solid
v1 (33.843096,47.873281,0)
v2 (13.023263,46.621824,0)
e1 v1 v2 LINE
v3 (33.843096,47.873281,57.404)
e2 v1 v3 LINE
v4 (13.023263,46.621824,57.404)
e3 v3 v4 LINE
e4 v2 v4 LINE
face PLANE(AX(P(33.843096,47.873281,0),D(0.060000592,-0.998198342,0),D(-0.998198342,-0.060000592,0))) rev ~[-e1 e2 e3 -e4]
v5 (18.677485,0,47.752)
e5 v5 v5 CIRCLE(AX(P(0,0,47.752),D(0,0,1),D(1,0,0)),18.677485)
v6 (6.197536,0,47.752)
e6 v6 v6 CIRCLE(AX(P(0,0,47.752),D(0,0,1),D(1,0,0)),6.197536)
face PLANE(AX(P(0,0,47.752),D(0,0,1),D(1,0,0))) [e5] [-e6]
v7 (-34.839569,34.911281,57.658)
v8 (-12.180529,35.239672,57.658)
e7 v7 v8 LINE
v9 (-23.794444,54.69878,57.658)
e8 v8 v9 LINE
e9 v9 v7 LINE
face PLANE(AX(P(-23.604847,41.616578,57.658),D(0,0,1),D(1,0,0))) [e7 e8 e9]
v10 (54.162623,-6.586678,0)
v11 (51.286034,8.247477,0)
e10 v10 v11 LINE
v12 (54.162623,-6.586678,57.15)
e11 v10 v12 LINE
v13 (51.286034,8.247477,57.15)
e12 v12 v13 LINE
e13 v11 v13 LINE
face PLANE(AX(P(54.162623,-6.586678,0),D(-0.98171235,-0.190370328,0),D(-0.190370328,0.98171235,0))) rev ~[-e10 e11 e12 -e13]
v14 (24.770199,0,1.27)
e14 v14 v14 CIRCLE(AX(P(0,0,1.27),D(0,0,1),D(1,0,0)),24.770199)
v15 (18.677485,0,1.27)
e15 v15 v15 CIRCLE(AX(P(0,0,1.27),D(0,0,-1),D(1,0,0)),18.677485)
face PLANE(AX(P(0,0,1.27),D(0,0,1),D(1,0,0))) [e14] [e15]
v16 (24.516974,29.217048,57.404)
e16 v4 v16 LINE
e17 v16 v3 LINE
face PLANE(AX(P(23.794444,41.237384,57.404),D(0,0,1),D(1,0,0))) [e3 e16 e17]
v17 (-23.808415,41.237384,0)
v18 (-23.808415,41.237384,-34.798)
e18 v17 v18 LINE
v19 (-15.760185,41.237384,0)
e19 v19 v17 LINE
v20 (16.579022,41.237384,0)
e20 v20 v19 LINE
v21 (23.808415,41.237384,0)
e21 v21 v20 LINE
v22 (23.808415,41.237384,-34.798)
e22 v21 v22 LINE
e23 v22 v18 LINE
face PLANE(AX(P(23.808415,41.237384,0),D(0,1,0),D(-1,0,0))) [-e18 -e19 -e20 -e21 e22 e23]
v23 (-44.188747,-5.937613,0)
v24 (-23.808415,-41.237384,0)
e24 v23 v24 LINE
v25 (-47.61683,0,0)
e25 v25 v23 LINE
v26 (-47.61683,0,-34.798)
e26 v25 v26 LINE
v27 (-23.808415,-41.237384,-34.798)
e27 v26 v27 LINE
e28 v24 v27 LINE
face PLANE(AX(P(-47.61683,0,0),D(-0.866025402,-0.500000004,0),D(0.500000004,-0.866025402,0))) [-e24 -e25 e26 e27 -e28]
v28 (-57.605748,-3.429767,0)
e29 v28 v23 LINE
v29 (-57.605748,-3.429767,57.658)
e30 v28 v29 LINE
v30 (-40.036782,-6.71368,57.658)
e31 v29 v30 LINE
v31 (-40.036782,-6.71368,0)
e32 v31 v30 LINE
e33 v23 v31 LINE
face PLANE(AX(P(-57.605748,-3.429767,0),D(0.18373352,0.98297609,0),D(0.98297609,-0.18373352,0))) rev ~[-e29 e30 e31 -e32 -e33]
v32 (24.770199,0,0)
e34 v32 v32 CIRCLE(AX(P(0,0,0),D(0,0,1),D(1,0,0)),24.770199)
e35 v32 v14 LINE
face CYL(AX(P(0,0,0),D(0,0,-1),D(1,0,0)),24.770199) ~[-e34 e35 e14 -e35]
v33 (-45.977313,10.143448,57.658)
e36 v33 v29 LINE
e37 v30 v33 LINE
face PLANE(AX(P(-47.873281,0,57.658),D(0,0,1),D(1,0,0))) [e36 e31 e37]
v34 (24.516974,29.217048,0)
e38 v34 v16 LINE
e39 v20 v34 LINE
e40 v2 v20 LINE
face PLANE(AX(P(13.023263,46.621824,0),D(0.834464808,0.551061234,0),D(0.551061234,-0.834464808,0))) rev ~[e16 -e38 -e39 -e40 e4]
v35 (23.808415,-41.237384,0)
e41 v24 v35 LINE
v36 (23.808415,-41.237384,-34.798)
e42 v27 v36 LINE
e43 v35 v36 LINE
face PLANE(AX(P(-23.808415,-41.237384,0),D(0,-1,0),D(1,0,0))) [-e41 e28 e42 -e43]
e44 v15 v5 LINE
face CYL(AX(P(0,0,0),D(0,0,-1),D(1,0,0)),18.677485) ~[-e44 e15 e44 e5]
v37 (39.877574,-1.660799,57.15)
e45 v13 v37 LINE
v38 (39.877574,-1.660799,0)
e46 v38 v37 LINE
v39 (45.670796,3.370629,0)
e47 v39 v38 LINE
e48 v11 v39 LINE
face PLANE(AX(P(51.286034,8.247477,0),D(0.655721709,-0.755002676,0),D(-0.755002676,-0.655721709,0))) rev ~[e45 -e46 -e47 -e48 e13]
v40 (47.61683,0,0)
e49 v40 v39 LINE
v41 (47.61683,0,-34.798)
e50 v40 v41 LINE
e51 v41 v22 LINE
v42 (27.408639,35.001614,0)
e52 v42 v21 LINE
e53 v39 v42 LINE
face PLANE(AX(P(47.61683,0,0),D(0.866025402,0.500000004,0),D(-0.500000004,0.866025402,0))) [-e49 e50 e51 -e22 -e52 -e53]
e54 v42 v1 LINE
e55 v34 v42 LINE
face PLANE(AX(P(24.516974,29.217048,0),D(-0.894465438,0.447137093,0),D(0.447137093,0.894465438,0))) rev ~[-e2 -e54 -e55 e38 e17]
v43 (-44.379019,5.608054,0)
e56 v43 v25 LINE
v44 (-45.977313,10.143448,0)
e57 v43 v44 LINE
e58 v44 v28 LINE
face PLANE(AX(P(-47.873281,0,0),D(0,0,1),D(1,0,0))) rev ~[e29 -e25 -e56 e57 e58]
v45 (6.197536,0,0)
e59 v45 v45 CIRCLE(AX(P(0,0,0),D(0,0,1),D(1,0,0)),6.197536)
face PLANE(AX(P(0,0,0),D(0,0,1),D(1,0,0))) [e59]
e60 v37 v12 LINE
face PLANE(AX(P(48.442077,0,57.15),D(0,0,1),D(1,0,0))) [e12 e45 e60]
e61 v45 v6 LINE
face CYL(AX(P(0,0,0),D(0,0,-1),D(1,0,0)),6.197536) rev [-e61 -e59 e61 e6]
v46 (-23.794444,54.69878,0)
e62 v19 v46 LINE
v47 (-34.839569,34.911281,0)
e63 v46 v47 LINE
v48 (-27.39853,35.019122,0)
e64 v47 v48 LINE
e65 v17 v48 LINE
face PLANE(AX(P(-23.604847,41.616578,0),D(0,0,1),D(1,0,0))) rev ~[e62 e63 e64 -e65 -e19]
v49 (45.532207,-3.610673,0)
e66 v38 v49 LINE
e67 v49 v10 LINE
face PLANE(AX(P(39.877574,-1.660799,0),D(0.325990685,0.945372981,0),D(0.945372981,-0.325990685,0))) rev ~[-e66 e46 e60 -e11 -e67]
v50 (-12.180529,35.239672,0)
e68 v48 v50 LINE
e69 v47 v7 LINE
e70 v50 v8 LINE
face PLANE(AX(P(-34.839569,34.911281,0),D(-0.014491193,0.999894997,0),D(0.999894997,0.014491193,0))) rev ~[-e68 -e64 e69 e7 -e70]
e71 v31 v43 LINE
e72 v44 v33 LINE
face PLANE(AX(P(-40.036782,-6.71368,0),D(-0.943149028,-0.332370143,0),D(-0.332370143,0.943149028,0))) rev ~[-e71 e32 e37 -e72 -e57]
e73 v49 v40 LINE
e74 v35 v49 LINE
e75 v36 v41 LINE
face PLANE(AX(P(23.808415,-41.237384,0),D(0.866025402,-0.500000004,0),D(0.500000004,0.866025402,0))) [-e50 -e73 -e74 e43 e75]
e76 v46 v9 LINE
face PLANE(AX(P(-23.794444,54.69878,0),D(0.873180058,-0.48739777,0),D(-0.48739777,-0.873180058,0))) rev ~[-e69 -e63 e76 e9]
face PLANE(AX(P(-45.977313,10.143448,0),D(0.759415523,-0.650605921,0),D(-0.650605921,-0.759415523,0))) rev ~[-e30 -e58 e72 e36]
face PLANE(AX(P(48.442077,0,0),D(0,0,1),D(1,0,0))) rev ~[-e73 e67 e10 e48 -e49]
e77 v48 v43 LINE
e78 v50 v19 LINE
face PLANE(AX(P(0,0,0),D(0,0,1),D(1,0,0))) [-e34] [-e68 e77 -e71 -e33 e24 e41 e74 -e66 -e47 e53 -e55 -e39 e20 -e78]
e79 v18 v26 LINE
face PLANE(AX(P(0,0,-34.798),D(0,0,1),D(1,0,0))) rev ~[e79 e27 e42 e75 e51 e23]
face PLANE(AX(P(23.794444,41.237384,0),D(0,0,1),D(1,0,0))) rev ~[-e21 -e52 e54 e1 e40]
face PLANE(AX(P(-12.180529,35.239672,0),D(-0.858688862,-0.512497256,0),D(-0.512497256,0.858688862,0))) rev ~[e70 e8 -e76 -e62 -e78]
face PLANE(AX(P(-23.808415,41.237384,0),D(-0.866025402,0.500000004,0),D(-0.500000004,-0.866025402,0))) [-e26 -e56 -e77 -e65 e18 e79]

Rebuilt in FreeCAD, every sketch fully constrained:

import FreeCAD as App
import Part
import Sketcher
from FreeCAD import Vector
Q = App.Units.Quantity


def add_polygon(sketch, points):
    """Adds a closed chain of lines whose ends are joined by coincident constraints."""
    first, n = sketch.GeometryCount, len(points)
    for a, b in zip(points, points[1:] + points[:1]):
        sketch.addGeometry(Part.LineSegment(App.Vector(*a, 0), App.Vector(*b, 0)), False)
    for i in range(n):
        sketch.addConstraint(Sketcher.Constraint("Coincident", first + i, 2, first + (i + 1) % n, 1))

doc = App.newDocument("Part")
body = doc.addObject("PartDesign::Body", "Body")

sketch1 = body.newObject("Sketcher::SketchObject", "Sketch")
sketch1.AttachmentSupport = (doc.getObject("XY_Plane"), [""])
sketch1.MapMode = "FlatFace"
sketch1.addGeometry([
    Part.Circle(Vector(0, 0, 0), Vector(0, 0, 1), 18.677485),
    Part.Circle(Vector(0, 0, 0), Vector(0, 0, 1), 6.197536),
], False)
sketch1.addConstraint([
    Sketcher.Constraint("Coincident", 0, 3, -1, 1),
    Sketcher.Constraint("Coincident", 1, 3, -1, 1),
    Sketcher.Constraint("Diameter", 0, Q("37.35497 mm")),
    Sketcher.Constraint("Diameter", 1, Q("12.395072 mm")),
])
pad1 = body.newObject("PartDesign::Pad", "Pad")
pad1.Profile = sketch1
pad1.Length = Q("1.88 in")

sketch2 = body.newObject("Sketcher::SketchObject", "Sketch001")
sketch2.AttachmentSupport = (doc.getObject("XY_Plane"), [""])
sketch2.MapMode = "FlatFace"
add_polygon(sketch2, [(23.808415, 41.237384), (-23.808415, 41.237384), (-47.61683, 0), (-23.808415, -41.237384), (23.808415, -41.237384), (47.61683, 0)])
sketch2.addConstraint([
    Sketcher.Constraint("Horizontal", 0),
    Sketcher.Constraint("Horizontal", 3),
    Sketcher.Constraint("Symmetric", 0, 2, 3, 2, -1, 1),
    Sketcher.Constraint("Symmetric", 1, 2, 4, 2, -1, 1),
    Sketcher.Constraint("PointOnObject", 1, 2, -1),
    Sketcher.Constraint("Parallel", 2, 5),
    Sketcher.Constraint("Vertical", 0, 2, 2, 2),
    Sketcher.Constraint("Angle", 1, Q("-120 deg")),
    Sketcher.Constraint("DistanceX", 0, 2, 0, 1, Q("47.61683 mm")),
    Sketcher.Constraint("Distance", 1, Q("47.61683 mm")),
])
pad2 = body.newObject("PartDesign::Pad", "Pad001")
pad2.Profile = sketch2
pad2.Length = Q("1.37 in")
pad2.Reversed = True

sketch3 = body.newObject("Sketcher::SketchObject", "Sketch002")
sketch3.AttachmentSupport = (doc.getObject("XY_Plane"), [""])
sketch3.MapMode = "FlatFace"
sketch3.addGeometry([
    Part.Circle(Vector(0, 0, 0), Vector(0, 0, 1), 24.770199),
    Part.Circle(Vector(0, 0, 0), Vector(0, 0, 1), 12.651261),
], False)
sketch3.addConstraint([
    Sketcher.Constraint("Coincident", 0, 3, -1, 1),
    Sketcher.Constraint("Coincident", 1, 3, -1, 1),
    Sketcher.Constraint("Diameter", 0, Q("49.540398 mm")),
    Sketcher.Constraint("Diameter", 1, Q("25.302522 mm")),
])
pad3 = body.newObject("PartDesign::Pad", "Pad002")
pad3.Profile = sketch3
pad3.Length = Q("0.05 in")

sketch4 = body.newObject("Sketcher::SketchObject", "Sketch003")
sketch4.AttachmentSupport = (doc.getObject("XY_Plane"), [""])
sketch4.MapMode = "FlatFace"
add_polygon(sketch4, [(-12.180529, 35.239672), (-23.794444, 54.69878), (-34.839569, 34.911281)])
sketch4.addConstraint([
    Sketcher.Constraint("Equal", 0, 1),
    Sketcher.Constraint("Equal", 1, 2),
    Sketcher.Constraint("DistanceY", 1, 2, 0, 2, Q("19.787499 mm")),
    Sketcher.Constraint("Distance", 0, Q("22.661419 mm")),
    Sketcher.Constraint("DistanceY", -1, 1, 0, 2, Q("54.69878 mm")),
    Sketcher.Constraint("DistanceX", 1, 2, -1, 1, Q("34.839569 mm")),
])
pad4 = body.newObject("PartDesign::Pad", "Pad003")
pad4.Profile = sketch4
pad4.Length = Q("2.27 in")

sketch5 = body.newObject("Sketcher::SketchObject", "Sketch004")
sketch5.AttachmentSupport = (doc.getObject("XY_Plane"), [""])
sketch5.MapMode = "FlatFace"
add_polygon(sketch5, [(24.516974, 29.217048), (33.843096, 47.873281), (13.023263, 46.621824)])
sketch5.addConstraint([
    Sketcher.Constraint("Equal", 0, 1),
    Sketcher.Constraint("Equal", 1, 2),
    Sketcher.Constraint("Distance", 0, Q("20.857411 mm")),
    Sketcher.Constraint("DistanceY", -1, 1, 0, 2, Q("47.873281 mm")),
    Sketcher.Constraint("DistanceX", 1, 2, 2, 2, Q("11.493711 mm")),
    Sketcher.Constraint("DistanceX", -1, 1, 0, 2, Q("33.843096 mm")),
])
pad5 = body.newObject("PartDesign::Pad", "Pad004")
pad5.Profile = sketch5
pad5.Length = Q("2.26 in")

sketch6 = body.newObject("Sketcher::SketchObject", "Sketch005")
sketch6.AttachmentSupport = (doc.getObject("XY_Plane"), [""])
sketch6.MapMode = "FlatFace"
add_polygon(sketch6, [(-40.036782, -6.71368), (-45.977313, 10.143448), (-57.605748, -3.429767)])
sketch6.addConstraint([
    Sketcher.Constraint("Equal", 0, 1),
    Sketcher.Constraint("Equal", 1, 2),
    Sketcher.Constraint("Distance", 0, Q("17.873239 mm")),
    Sketcher.Constraint("DistanceY", 2, 2, -1, 1, Q("6.71368 mm")),
    Sketcher.Constraint("DistanceX", 0, 2, 2, 2, Q("5.940531 mm")),
    Sketcher.Constraint("DistanceX", 0, 2, -1, 1, Q("45.977313 mm")),
])
pad6 = body.newObject("PartDesign::Pad", "Pad005")
pad6.Profile = sketch6
pad6.Length = Q("2.27 in")

sketch7 = body.newObject("Sketcher::SketchObject", "Sketch006")
sketch7.AttachmentSupport = (doc.getObject("XY_Plane"), [""])
sketch7.MapMode = "FlatFace"
add_polygon(sketch7, [(54.162623, -6.586678), (51.286034, 8.247477), (39.877574, -1.660799)])
sketch7.addConstraint([
    Sketcher.Constraint("Equal", 0, 1),
    Sketcher.Constraint("Equal", 1, 2),
    Sketcher.Constraint("DistanceY", 1, 2, -1, 1, Q("1.660799 mm")),
    Sketcher.Constraint("Distance", 0, Q("15.11049 mm")),
    Sketcher.Constraint("DistanceX", 1, 2, 0, 2, Q("11.40846 mm")),
    Sketcher.Constraint("DistanceX", -1, 1, 0, 2, Q("51.286034 mm")),
])
pad7 = body.newObject("PartDesign::Pad", "Pad006")
pad7.Profile = sketch7
pad7.Length = Q("2.25 in")

doc.recompute()
